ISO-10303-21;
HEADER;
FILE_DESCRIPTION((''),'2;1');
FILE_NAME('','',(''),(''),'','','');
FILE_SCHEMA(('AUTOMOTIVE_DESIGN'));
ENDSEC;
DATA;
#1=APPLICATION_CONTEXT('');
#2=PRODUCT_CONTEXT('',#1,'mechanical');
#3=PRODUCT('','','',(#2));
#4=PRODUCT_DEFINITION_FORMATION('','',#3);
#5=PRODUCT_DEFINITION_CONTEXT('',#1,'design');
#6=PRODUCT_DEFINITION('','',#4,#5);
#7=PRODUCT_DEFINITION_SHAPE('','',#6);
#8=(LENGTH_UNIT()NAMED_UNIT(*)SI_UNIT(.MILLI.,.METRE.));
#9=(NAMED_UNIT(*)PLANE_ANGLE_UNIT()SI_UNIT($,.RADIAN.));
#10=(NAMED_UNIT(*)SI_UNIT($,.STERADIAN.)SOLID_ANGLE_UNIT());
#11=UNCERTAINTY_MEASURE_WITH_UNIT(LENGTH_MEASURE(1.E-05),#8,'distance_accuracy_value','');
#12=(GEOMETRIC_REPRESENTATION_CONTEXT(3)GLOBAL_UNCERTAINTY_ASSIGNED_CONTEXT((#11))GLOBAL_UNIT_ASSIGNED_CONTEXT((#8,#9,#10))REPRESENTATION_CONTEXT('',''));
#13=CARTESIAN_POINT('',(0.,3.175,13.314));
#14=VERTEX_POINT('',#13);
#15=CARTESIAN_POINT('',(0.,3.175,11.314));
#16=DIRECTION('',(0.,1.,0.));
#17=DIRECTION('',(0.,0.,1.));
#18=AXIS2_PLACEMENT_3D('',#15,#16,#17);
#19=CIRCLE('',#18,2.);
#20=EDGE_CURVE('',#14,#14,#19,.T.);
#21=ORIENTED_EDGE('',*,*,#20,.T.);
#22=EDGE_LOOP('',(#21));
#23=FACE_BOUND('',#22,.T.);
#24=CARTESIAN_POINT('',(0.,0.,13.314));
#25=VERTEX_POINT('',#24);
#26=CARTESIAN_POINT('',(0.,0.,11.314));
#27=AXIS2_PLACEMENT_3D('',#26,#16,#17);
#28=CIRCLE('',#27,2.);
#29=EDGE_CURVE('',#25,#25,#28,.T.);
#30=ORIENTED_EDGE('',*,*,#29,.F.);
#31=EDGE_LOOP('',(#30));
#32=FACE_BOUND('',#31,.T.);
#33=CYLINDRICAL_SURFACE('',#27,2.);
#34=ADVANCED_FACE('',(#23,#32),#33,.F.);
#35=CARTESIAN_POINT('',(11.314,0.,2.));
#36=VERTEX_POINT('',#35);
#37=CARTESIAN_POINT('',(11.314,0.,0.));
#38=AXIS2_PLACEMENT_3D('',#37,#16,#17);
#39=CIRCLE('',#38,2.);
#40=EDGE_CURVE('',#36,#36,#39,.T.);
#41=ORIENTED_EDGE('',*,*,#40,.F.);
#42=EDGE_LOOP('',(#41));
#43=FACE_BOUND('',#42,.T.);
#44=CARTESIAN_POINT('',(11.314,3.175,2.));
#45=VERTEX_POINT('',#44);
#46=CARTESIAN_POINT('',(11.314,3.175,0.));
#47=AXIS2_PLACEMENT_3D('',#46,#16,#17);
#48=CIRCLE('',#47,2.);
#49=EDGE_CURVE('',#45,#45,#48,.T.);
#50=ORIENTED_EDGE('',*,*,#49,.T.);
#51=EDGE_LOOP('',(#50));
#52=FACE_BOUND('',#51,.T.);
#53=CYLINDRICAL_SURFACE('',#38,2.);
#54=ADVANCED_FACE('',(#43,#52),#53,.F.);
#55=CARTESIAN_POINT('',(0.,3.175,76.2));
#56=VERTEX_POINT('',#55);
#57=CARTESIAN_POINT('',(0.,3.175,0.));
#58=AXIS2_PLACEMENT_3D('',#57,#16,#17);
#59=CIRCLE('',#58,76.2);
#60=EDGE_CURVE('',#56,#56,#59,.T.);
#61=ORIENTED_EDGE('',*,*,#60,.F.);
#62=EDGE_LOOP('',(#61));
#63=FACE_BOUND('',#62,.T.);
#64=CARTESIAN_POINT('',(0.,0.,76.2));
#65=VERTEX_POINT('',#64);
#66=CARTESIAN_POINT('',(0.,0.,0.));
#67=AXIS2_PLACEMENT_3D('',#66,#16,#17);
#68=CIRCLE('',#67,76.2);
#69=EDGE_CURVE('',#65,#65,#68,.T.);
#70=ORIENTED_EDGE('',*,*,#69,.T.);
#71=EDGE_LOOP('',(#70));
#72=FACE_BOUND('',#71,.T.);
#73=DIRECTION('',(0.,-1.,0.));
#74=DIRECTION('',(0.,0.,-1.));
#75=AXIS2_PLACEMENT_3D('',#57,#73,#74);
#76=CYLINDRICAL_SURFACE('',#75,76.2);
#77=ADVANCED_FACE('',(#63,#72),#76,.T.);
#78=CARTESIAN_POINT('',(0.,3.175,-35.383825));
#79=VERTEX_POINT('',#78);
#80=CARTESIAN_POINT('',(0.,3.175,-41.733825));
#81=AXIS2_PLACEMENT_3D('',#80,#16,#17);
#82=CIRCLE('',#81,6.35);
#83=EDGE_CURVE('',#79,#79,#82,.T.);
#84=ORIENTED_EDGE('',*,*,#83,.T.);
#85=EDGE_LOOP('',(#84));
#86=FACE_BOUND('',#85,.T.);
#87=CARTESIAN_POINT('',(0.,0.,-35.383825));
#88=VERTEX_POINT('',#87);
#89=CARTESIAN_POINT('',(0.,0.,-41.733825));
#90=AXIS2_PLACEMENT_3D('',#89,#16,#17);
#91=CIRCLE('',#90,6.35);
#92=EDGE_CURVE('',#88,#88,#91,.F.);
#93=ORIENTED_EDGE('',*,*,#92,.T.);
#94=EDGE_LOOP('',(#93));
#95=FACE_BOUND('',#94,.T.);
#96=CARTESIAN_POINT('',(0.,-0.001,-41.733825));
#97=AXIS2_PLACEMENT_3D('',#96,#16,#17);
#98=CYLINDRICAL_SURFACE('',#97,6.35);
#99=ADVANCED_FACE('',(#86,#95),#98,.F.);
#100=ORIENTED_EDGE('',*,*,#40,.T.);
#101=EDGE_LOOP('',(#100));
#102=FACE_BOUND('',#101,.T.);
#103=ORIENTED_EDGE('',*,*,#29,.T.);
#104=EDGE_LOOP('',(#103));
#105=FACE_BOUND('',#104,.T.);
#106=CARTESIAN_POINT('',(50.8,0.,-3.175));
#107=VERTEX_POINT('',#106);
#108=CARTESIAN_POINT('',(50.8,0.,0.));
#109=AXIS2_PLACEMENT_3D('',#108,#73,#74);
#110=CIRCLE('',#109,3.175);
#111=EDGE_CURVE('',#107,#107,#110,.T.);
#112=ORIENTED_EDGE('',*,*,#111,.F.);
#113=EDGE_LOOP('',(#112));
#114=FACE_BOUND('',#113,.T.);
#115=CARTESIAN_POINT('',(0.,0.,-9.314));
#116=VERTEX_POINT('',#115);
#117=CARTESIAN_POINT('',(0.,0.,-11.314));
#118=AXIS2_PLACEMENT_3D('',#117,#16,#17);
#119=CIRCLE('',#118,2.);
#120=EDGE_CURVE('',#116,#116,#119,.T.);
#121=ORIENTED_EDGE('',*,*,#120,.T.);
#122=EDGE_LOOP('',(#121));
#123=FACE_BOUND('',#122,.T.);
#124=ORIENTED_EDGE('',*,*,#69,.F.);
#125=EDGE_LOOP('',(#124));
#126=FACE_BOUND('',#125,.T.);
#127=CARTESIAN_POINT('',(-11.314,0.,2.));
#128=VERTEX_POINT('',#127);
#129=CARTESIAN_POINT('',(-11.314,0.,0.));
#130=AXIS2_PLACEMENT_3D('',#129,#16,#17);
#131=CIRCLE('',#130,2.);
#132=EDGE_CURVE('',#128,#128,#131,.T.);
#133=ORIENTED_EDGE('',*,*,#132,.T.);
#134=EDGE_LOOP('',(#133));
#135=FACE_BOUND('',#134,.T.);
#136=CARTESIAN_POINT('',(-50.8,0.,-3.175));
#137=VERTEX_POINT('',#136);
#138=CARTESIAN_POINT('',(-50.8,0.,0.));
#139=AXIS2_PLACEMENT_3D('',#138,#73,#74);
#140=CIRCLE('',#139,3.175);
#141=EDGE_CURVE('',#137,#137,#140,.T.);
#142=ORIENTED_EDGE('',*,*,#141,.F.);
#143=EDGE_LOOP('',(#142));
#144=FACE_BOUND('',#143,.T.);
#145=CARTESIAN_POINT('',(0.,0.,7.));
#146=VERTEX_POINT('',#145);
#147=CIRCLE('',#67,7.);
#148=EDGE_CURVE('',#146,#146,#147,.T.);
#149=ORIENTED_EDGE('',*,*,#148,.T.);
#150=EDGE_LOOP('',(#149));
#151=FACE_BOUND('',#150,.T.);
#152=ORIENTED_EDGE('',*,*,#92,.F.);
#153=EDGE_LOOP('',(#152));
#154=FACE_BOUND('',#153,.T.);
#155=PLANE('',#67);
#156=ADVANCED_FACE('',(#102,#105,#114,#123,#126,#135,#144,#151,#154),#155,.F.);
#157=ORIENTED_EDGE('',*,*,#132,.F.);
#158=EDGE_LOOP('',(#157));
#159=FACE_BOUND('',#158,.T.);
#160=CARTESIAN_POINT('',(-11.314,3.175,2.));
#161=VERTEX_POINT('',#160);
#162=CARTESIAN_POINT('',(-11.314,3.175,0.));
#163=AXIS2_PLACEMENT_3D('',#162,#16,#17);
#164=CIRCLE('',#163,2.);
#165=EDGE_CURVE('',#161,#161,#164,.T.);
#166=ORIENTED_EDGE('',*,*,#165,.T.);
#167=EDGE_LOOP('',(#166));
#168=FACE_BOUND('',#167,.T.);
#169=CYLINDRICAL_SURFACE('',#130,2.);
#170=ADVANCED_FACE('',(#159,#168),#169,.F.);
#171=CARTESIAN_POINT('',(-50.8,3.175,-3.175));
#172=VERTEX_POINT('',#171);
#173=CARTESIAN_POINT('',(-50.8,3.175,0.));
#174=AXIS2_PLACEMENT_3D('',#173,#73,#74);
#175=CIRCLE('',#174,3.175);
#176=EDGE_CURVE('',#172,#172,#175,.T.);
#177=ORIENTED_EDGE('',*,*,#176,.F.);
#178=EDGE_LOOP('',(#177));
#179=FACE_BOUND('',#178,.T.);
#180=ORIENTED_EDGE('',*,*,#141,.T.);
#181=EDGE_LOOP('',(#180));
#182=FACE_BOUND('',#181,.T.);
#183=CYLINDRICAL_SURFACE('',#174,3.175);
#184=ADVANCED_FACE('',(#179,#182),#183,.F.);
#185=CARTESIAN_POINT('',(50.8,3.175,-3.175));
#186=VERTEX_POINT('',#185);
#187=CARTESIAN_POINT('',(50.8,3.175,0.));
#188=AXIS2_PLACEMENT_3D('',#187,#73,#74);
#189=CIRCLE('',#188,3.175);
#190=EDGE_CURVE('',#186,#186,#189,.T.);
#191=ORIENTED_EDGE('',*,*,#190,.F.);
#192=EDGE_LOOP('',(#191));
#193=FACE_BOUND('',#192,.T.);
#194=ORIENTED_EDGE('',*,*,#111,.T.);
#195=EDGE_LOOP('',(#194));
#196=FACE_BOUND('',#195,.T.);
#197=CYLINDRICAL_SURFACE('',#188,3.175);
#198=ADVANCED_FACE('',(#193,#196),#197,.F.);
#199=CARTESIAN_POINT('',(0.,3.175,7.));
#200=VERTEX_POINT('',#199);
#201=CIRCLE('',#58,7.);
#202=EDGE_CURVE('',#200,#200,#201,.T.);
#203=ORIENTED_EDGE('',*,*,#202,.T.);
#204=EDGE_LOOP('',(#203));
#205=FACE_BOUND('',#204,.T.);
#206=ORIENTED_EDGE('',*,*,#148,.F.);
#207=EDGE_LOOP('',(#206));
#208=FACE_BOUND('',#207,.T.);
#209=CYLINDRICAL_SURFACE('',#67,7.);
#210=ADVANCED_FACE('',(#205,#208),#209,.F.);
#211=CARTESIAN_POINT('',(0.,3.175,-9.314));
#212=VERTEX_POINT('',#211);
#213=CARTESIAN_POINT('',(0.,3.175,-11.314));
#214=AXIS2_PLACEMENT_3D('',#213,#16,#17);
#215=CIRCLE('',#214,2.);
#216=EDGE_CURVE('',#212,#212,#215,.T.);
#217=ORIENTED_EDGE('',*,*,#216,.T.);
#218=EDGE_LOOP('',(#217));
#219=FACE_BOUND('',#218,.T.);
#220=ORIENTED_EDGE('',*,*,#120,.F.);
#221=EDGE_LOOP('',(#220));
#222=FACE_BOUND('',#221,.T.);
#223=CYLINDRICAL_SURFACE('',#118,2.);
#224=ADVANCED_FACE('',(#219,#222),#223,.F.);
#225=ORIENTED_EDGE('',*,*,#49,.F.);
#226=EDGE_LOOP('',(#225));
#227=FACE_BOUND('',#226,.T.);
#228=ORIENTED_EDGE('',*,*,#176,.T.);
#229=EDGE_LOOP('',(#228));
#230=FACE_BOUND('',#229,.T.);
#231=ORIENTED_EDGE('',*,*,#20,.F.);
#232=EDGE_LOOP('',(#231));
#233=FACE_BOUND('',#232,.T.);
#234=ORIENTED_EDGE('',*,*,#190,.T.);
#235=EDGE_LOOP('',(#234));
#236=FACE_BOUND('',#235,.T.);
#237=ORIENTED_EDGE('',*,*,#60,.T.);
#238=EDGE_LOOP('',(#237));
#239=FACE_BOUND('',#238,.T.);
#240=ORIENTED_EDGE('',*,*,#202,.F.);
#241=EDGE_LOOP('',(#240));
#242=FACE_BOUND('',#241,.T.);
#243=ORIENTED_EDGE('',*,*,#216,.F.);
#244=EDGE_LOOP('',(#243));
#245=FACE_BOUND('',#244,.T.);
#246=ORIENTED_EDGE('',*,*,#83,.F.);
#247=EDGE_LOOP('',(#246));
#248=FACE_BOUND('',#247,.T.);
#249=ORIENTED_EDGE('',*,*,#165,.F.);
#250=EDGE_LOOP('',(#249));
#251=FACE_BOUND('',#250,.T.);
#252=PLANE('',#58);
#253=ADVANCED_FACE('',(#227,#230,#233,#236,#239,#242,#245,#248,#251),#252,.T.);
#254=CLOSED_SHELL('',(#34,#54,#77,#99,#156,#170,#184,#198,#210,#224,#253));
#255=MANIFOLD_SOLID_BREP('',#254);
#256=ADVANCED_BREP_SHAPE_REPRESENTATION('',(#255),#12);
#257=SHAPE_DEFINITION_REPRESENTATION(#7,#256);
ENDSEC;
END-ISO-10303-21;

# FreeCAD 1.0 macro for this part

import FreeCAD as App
import Part
import Sketcher
from FreeCAD import Vector
Q = App.Units.Quantity

doc = App.newDocument("Part")
body = doc.addObject("PartDesign::Body", "Body")

# Sketch on XZ plane
sketch1 = doc.addObject("Sketcher::SketchObject", "Sketch")
body.addObject(sketch1)
sketch1.AttachmentSupport = (doc.XZ_Plane, [""])
sketch1.MapMode = "FlatFace"
sketch1.addGeometry(Part.Circle(Vector(0, 0, 0), Vector(0, 0, 1), 76), False)
sketch1.addConstraint([
    Sketcher.Constraint("Coincident", 0, 3, -1, 1),
    Sketcher.Constraint("Diameter", 0, Q("6 in")),
])
pad1 = doc.addObject("PartDesign::Pad", "Pad")
body.addObject(pad1)
pad1.Profile = sketch1
pad1.Length = Q("0.125 in")
pad1.Reversed = True

# Sketch on XZ plane
sketch2 = doc.addObject("Sketcher::SketchObject", "Sketch001")
body.addObject(sketch2)
sketch2.AttachmentSupport = (doc.XZ_Plane, [""])
sketch2.MapMode = "FlatFace"
sketch2.AttachmentOffset = App.Placement(Vector(0, 0, -0.125 * 25.4), App.Rotation())
sketch2.addGeometry(Part.Circle(Vector(0, 0, 0), Vector(0, 0, 1), 7), False)
sketch2.addConstraint([
    Sketcher.Constraint("Coincident", 0, 3, -1, 1),
    Sketcher.Constraint("Diameter", 0, Q("14 mm")),
])
pocket1 = doc.addObject("PartDesign::Pocket", "Pocket")
body.addObject(pocket1)
pocket1.Profile = sketch2
pocket1.Type = "ThroughAll"
pocket1.Reversed = True

# Sketch on XZ plane
sketch3 = doc.addObject("Sketcher::SketchObject", "Sketch002")
body.addObject(sketch3)
sketch3.AttachmentSupport = (doc.XZ_Plane, [""])
sketch3.MapMode = "FlatFace"
sketch3.AttachmentOffset = App.Placement(Vector(0, 0, -0.125 * 25.4), App.Rotation())
sketch3.addGeometry([
    Part.Circle(Vector(11.3, 0, 0), Vector(0, 0, 1), 2),
    Part.Circle(Vector(0, 11.3, 0), Vector(0, 0, 1), 2),
    Part.Circle(Vector(-11.3, 0, 0), Vector(0, 0, 1), 2),
    Part.Circle(Vector(0, -11.3, 0), Vector(0, 0, 1), 2),
], False)
sketch3.addConstraint([
    Sketcher.Constraint("Equal", 0, 1),
    Sketcher.Constraint("Equal", 1, 2),
    Sketcher.Constraint("Equal", 2, 3),
    Sketcher.Constraint("Symmetric", 0, 3, 2, 3, -1, 1),
    Sketcher.Constraint("Symmetric", 1, 3, 3, 3, -1, 1),
    Sketcher.Constraint("PointOnObject", 0, 3, -1),
    Sketcher.Constraint("PointOnObject", 1, 3, -2),
    Sketcher.Constraint("Diameter", 0, Q("4 mm")),
    Sketcher.Constraint("DistanceX", -1, 1, 0, 3, Q("11.314 mm")),
    Sketcher.Constraint("DistanceY", -1, 1, 1, 3, Q("11.314 mm")),
])
pocket2 = doc.addObject("PartDesign::Pocket", "Pocket001")
body.addObject(pocket2)
pocket2.Profile = sketch3
pocket2.Type = "ThroughAll"
pocket2.Reversed = True

# Sketch on XZ plane
sketch4 = doc.addObject("Sketcher::SketchObject", "Sketch003")
body.addObject(sketch4)
sketch4.AttachmentSupport = (doc.XZ_Plane, [""])
sketch4.MapMode = "FlatFace"
sketch4.addGeometry([
    Part.Circle(Vector(-50.8, 0, 0), Vector(0, 0, 1), 3.2),
    Part.Circle(Vector(50.8, 0, 0), Vector(0, 0, 1), 3.2),
], False)
sketch4.addConstraint([
    Sketcher.Constraint("Equal", 0, 1),
    Sketcher.Constraint("Symmetric", 0, 3, 1, 3, -1, 1),
    Sketcher.Constraint("PointOnObject", 0, 3, -1),
    Sketcher.Constraint("Diameter", 0, Q("0.25 in")),
    Sketcher.Constraint("DistanceX", 0, 3, -1, 1, Q("2 in")),
])
pocket3 = doc.addObject("PartDesign::Pocket", "Pocket002")
body.addObject(pocket3)
pocket3.Profile = sketch4
pocket3.Type = "ThroughAll"

# Sketch on XZ plane
sketch5 = doc.addObject("Sketcher::SketchObject", "Sketch004")
body.addObject(sketch5)
sketch5.AttachmentSupport = (doc.XZ_Plane, [""])
sketch5.MapMode = "FlatFace"
sketch5.AttachmentOffset = App.Placement(Vector(0, 0, -0.125 * 25.4), App.Rotation())
sketch5.addGeometry(Part.Circle(Vector(0, -42, 0), Vector(0, 0, 1), 6), False)
sketch5.addConstraint([
    Sketcher.Constraint("PointOnObject", 0, 3, -2),
    Sketcher.Constraint("Diameter", 0, Q("0.5 in")),
    Sketcher.Constraint("DistanceY", 0, 3, -1, 1, Q("41.733825 mm")),
])
pocket4 = doc.addObject("PartDesign::Pocket", "Pocket003")
body.addObject(pocket4)
pocket4.Profile = sketch5
pocket4.Type = "UpToFirst"
pocket4.Reversed = True

doc.recompute()
